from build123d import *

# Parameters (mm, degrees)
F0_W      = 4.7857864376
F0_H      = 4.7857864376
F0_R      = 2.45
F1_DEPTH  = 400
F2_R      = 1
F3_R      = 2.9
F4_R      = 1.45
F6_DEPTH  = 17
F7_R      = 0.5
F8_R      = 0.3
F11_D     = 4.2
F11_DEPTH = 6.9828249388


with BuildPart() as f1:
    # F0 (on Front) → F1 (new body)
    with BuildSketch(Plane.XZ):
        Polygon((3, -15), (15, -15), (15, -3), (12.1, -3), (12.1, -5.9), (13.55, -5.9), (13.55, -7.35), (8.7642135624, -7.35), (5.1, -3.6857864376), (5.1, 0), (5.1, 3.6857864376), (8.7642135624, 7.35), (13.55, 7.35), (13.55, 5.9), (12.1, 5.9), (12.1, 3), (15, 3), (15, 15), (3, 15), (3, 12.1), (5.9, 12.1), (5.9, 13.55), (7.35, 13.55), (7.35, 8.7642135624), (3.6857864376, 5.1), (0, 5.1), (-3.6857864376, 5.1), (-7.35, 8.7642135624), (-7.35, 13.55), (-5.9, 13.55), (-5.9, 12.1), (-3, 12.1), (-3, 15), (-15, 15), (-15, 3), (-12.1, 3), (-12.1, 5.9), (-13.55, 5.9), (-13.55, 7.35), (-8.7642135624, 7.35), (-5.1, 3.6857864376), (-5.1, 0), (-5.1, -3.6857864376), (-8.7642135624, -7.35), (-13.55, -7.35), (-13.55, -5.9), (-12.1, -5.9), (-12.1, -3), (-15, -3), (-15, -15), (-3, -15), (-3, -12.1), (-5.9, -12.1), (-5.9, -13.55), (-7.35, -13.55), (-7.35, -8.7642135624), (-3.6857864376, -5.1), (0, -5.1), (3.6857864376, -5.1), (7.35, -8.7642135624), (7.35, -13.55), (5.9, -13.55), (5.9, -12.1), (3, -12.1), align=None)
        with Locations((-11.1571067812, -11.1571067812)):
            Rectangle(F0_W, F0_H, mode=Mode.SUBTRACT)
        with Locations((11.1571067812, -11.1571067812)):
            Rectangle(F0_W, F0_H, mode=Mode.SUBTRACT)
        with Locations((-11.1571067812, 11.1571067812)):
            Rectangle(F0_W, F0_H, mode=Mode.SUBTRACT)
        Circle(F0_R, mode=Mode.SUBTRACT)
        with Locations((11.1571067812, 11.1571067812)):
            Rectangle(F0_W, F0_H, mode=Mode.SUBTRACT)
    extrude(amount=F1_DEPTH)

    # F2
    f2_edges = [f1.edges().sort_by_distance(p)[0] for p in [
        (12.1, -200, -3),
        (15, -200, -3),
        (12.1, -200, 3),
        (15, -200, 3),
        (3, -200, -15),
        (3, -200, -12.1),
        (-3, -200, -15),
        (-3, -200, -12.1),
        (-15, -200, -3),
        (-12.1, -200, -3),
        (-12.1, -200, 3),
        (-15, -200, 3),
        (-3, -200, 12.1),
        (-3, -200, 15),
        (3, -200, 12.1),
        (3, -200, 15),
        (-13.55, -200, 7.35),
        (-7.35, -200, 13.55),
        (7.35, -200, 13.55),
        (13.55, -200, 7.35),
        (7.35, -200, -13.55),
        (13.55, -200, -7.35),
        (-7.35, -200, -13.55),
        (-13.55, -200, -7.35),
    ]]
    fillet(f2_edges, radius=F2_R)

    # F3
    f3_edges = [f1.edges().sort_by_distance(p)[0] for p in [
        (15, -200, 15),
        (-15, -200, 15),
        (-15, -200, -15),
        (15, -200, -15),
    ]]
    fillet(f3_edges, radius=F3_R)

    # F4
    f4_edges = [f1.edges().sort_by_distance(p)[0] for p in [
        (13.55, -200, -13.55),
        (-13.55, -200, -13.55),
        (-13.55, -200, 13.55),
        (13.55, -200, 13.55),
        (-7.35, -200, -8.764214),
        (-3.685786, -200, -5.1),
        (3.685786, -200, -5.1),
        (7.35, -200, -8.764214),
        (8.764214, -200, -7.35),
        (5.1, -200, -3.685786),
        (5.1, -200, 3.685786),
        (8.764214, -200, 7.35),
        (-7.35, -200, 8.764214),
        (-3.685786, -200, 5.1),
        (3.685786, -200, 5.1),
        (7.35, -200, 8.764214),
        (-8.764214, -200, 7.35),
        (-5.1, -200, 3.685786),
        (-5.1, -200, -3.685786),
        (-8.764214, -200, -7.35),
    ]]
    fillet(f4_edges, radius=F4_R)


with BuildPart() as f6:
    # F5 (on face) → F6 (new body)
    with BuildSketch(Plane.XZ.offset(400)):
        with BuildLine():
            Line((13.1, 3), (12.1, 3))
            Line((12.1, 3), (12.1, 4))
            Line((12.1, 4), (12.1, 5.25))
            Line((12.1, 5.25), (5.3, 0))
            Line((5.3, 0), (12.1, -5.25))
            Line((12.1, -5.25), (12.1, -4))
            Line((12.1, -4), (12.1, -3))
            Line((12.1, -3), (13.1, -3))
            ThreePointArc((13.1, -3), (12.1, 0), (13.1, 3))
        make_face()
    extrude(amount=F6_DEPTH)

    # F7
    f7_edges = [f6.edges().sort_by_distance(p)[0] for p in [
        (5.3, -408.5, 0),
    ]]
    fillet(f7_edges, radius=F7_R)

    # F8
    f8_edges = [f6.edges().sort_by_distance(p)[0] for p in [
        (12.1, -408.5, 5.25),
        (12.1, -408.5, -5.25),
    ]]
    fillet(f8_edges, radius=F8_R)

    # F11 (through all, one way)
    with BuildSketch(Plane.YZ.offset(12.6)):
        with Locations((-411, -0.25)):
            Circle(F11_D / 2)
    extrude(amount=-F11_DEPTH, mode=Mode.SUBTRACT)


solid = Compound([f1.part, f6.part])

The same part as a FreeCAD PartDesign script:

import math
import FreeCAD as App
import Part
import Sketcher
from FreeCAD import Vector


def edges_at(feature, points):
    """Names of the edges that pass closest to the given points."""
    edges = feature.Shape.Edges
    near = lambda p: min(range(len(edges)), key=lambda i: edges[i].distToShape(Part.Vertex(*p))[0])
    return sorted({f"Edge{near(p) + 1}" for p in points})


def add_polygon(sketch, points):
    """Adds a closed chain of lines whose ends are joined by coincident constraints."""
    first, n = sketch.GeometryCount, len(points)
    for a, b in zip(points, points[1:] + points[:1]):
        sketch.addGeometry(Part.LineSegment(App.Vector(*a, 0), App.Vector(*b, 0)), False)
    for i in range(n):
        sketch.addConstraint(Sketcher.Constraint("Coincident", first + i, 2, first + (i + 1) % n, 1))

doc = App.newDocument("Part")
body = doc.addObject("PartDesign::Body", "Body")

# Sketch on XZ plane
sketch1 = body.newObject("Sketcher::SketchObject", "Sketch")
sketch1.AttachmentSupport = (doc.getObject("XZ_Plane"), [""])
sketch1.MapMode = "FlatFace"
add_polygon(sketch1, [(3, -15), (15, -15), (15, -3), (12.1, -3), (12.1, -5.9), (13.6, -5.9), (13.6, -7.3), (8.8, -7.3), (5.1, -3.7), (5.1, 3.7), (8.8, 7.3), (13.6, 7.3), (13.6, 5.9), (12.1, 5.9), (12.1, 3), (15, 3), (15, 15), (3, 15), (3, 12.1), (5.9, 12.1), (5.9, 13.6), (7.3, 13.6), (7.3, 8.8), (3.7, 5.1), (-3.7, 5.1), (-7.3, 8.8), (-7.3, 13.6), (-5.9, 13.6), (-5.9, 12.1), (-3, 12.1), (-3, 15), (-15, 15), (-15, 3), (-12.1, 3), (-12.1, 5.9), (-13.6, 5.9), (-13.6, 7.3), (-8.8, 7.3), (-5.1, 3.7), (-5.1, -3.7), (-8.8, -7.3), (-13.6, -7.3), (-13.6, -5.9), (-12.1, -5.9), (-12.1, -3), (-15, -3), (-15, -15), (-3, -15), (-3, -12.1), (-5.9, -12.1), (-5.9, -13.6), (-7.3, -13.6), (-7.3, -8.8), (-3.7, -5.1), (3.7, -5.1), (7.3, -8.8), (7.3, -13.6), (5.9, -13.6), (5.9, -12.1), (3, -12.1)])  # lines 0-59
add_polygon(sketch1, [(-8.8, -13.6), (-13.6, -13.6), (-13.6, -8.8), (-8.8, -8.8)])  # lines 60-63
sketch1.addGeometry(Part.Circle(Vector(0, 0, 0), Vector(0, 0, 1), 2.5), False)  # 64
add_polygon(sketch1, [(13.6, -13.6), (8.8, -13.6), (8.8, -8.8), (13.6, -8.8)])  # lines 65-68
add_polygon(sketch1, [(-8.8, 8.8), (-13.6, 8.8), (-13.6, 13.6), (-8.8, 13.6)])  # lines 69-72
add_polygon(sketch1, [(13.6, 8.8), (8.8, 8.8), (8.8, 13.6), (13.6, 13.6)])  # lines 73-76
sketch1.addConstraint([
    Sketcher.Constraint("Horizontal", 0),
    Sketcher.Constraint("Vertical", 1),
    Sketcher.Constraint("Horizontal", 2),
    Sketcher.Constraint("Vertical", 3),
    Sketcher.Constraint("Horizontal", 4),
    Sketcher.Constraint("Vertical", 5),
    Sketcher.Constraint("Horizontal", 6),
    Sketcher.Constraint("Vertical", 8),
    Sketcher.Constraint("Horizontal", 10),
    Sketcher.Constraint("Vertical", 11),
    Sketcher.Constraint("Horizontal", 12),
    Sketcher.Constraint("Vertical", 13),
    Sketcher.Constraint("Horizontal", 14),
    Sketcher.Constraint("Vertical", 15),
    Sketcher.Constraint("Horizontal", 16),
    Sketcher.Constraint("Vertical", 17),
    Sketcher.Constraint("Horizontal", 18),
    Sketcher.Constraint("Vertical", 19),
    Sketcher.Constraint("Horizontal", 20),
    Sketcher.Constraint("Vertical", 21),
    Sketcher.Constraint("Horizontal", 23),
    Sketcher.Constraint("Vertical", 25),
    Sketcher.Constraint("Horizontal", 26),
    Sketcher.Constraint("Vertical", 27),
    Sketcher.Constraint("Horizontal", 28),
    Sketcher.Constraint("Vertical", 29),
    Sketcher.Constraint("Horizontal", 30),
    Sketcher.Constraint("Vertical", 31),
    Sketcher.Constraint("Horizontal", 32),
    Sketcher.Constraint("Vertical", 33),
    Sketcher.Constraint("Horizontal", 34),
    Sketcher.Constraint("Vertical", 35),
    Sketcher.Constraint("Horizontal", 36),
    Sketcher.Constraint("Vertical", 38),
    Sketcher.Constraint("Horizontal", 40),
    Sketcher.Constraint("Vertical", 41),
    Sketcher.Constraint("Horizontal", 42),
    Sketcher.Constraint("Vertical", 43),
    Sketcher.Constraint("Horizontal", 44),
    Sketcher.Constraint("Vertical", 45),
    Sketcher.Constraint("Horizontal", 46),
    Sketcher.Constraint("Vertical", 47),
    Sketcher.Constraint("Horizontal", 48),
    Sketcher.Constraint("Vertical", 49),
    Sketcher.Constraint("Horizontal", 50),
    Sketcher.Constraint("Vertical", 51),
    Sketcher.Constraint("Horizontal", 53),
    Sketcher.Constraint("Vertical", 55),
    Sketcher.Constraint("Horizontal", 56),
    Sketcher.Constraint("Vertical", 57),
    Sketcher.Constraint("Horizontal", 58),
    Sketcher.Constraint("Vertical", 59),
    Sketcher.Constraint("Horizontal", 60),
    Sketcher.Constraint("Vertical", 61),
    Sketcher.Constraint("Horizontal", 62),
    Sketcher.Constraint("Vertical", 63),
    Sketcher.Constraint("Horizontal", 65),
    Sketcher.Constraint("Vertical", 66),
    Sketcher.Constraint("Horizontal", 67),
    Sketcher.Constraint("Vertical", 68),
    Sketcher.Constraint("Horizontal", 69),
    Sketcher.Constraint("Vertical", 70),
    Sketcher.Constraint("Horizontal", 71),
    Sketcher.Constraint("Vertical", 72),
    Sketcher.Constraint("Horizontal", 73),
    Sketcher.Constraint("Vertical", 74),
    Sketcher.Constraint("Horizontal", 75),
    Sketcher.Constraint("Vertical", 76),
    Sketcher.Constraint("Coincident", 64, 3, -1, 1),
    Sketcher.Constraint("Symmetric", 0, 2, 30, 2, -1, 1),
    Sketcher.Constraint("Symmetric", 2, 2, 32, 2, -1, 1),
    Sketcher.Constraint("Symmetric", 4, 2, 34, 2, -1, 1),
    Sketcher.Constraint("Symmetric", 6, 2, 36, 2, -1, 1),
    Sketcher.Constraint("Symmetric", 7, 2, 37, 2, -1, 1),
    Sketcher.Constraint("Symmetric", 9, 2, 39, 2, -1, 1),
    Sketcher.Constraint("Symmetric", 11, 2, 41, 2, -1, 1),
    Sketcher.Constraint("Symmetric", 13, 2, 43, 2, -1, 1),
    Sketcher.Constraint("Symmetric", 15, 2, 45, 2, -1, 1),
    Sketcher.Constraint("Symmetric", 17, 2, 47, 2, -1, 1),
    Sketcher.Constraint("Symmetric", 19, 2, 49, 2, -1, 1),
    Sketcher.Constraint("Symmetric", 21, 2, 51, 2, -1, 1),
    Sketcher.Constraint("Symmetric", 22, 2, 52, 2, -1, 1),
    Sketcher.Constraint("Symmetric", 24, 2, 54, 2, -1, 1),
    Sketcher.Constraint("Symmetric", 26, 2, 56, 2, -1, 1),
    Sketcher.Constraint("Symmetric", 28, 2, 58, 2, -1, 1),
    Sketcher.Constraint("Symmetric", 67, 2, 69, 2, -1, 1),
    Sketcher.Constraint("Symmetric", 65, 2, 71, 2, -1, 1),
    Sketcher.Constraint("Symmetric", 62, 2, 73, 2, -1, 1),
    Sketcher.Constraint("Symmetric", 60, 2, 75, 2, -1, 1),
    Sketcher.Constraint("Symmetric", 21, 2, 24, 2, -2),
    Sketcher.Constraint("Symmetric", 19, 2, 26, 2, -2),
    Sketcher.Constraint("Symmetric", 17, 2, 28, 2, -2),
    Sketcher.Constraint("Symmetric", 15, 2, 30, 2, -2),
    Sketcher.Constraint("Symmetric", 13, 2, 32, 2, -2),
    Sketcher.Constraint("Symmetric", 11, 2, 34, 2, -2),
    Sketcher.Constraint("Symmetric", 9, 2, 36, 2, -2),
    Sketcher.Constraint("Symmetric", 63, 2, 65, 2, -2),
    Sketcher.Constraint("Symmetric", 61, 2, 67, 2, -2),
    Sketcher.Constraint("Perpendicular", 7, 9),
    Sketcher.Constraint("Parallel", 9, 22),
    Sketcher.Constraint("Perpendicular", 22, 24),
    Sketcher.Constraint("Perpendicular", 37, 39),
    Sketcher.Constraint("Perpendicular", 52, 54),
    Sketcher.Constraint("Horizontal", 8, 2, 37, 2),
    Sketcher.Constraint("Horizontal", 56, 2, 60, 2),
    Sketcher.Constraint("Horizontal", 54, 2, 61, 2),
    Sketcher.Constraint("Vertical", 41, 2, 60, 2),
    Sketcher.Constraint("Vertical", 39, 2, 62, 2),
    Sketcher.Constraint("Equal", 14, 18),
    Sketcher.Constraint("Equal", 12, 20),
    Sketcher.Constraint("Equal", 46, 1),
    Sketcher.Constraint("Equal", 58, 3),
    Sketcher.Constraint("Equal", 56, 5),
    Sketcher.Constraint("Equal", 53, 8),
    Sketcher.Constraint("Equal", 13, 17),
    Sketcher.Constraint("Equal", 11, 19),
    Sketcher.Constraint("Equal", 75, 21),
    Sketcher.Constraint("Equal", 9, 22),
    Sketcher.Constraint("Diameter", 64, 4.9),
    Sketcher.Constraint("DistanceX", 0, 1, 0, 2, 12.0),
    Sketcher.Constraint("DistanceX", 2, 2, 2, 1, 2.9),
    Sketcher.Constraint("DistanceX", -1, 1, 0, 2, 15.0),
    Sketcher.Constraint("DistanceX", 4, 1, 4, 2, 1.45),
    Sketcher.Constraint("DistanceX", -1, 1, 7, 2, 5.1),
    Sketcher.Constraint("Distance", 7, 5.181981),
])
pad1 = body.newObject("PartDesign::Pad", "Pad")
pad1.Profile = sketch1
pad1.Length = 400
doc.recompute()

fillet = body.newObject("PartDesign::Fillet", "Fillet")
fillet.Base = (pad1, edges_at(pad1, [
    (12.1, -200, -3),
    (15, -200, -3),
    (12.1, -200, 3),
    (15, -200, 3),
    (3, -200, -15),
    (3, -200, -12.1),
    (-3, -200, -15),
    (-3, -200, -12.1),
    (-15, -200, -3),
    (-12.1, -200, -3),
    (-12.1, -200, 3),
    (-15, -200, 3),
    (-3, -200, 12.1),
    (-3, -200, 15),
    (3, -200, 12.1),
    (3, -200, 15),
    (-13.55, -200, 7.35),
    (-7.35, -200, 13.55),
    (7.35, -200, 13.55),
    (13.55, -200, 7.35),
    (7.35, -200, -13.55),
    (13.55, -200, -7.35),
    (-7.35, -200, -13.55),
    (-13.55, -200, -7.35),
]))
fillet.Radius = 1
doc.recompute()

fillet2 = body.newObject("PartDesign::Fillet", "Fillet001")
fillet2.Base = (fillet, edges_at(fillet, [
    (15, -200, 15),
    (-15, -200, 15),
    (-15, -200, -15),
    (15, -200, -15),
]))
fillet2.Radius = 2.9
doc.recompute()

fillet3 = body.newObject("PartDesign::Fillet", "Fillet002")
fillet3.Base = (fillet2, edges_at(fillet2, [
    (13.55, -200, -13.55),
    (-13.55, -200, -13.55),
    (-13.55, -200, 13.55),
    (13.55, -200, 13.55),
    (-7.35, -200, -8.764),
    (-3.686, -200, -5.1),
    (3.686, -200, -5.1),
    (7.35, -200, -8.764),
    (8.764, -200, -7.35),
    (5.1, -200, -3.686),
    (5.1, -200, 3.686),
    (8.764, -200, 7.35),
    (-7.35, -200, 8.764),
    (-3.686, -200, 5.1),
    (3.686, -200, 5.1),
    (7.35, -200, 8.764),
    (-8.764, -200, 7.35),
    (-5.1, -200, 3.686),
    (-5.1, -200, -3.686),
    (-8.764, -200, -7.35),
]))
fillet3.Radius = 1.45
body2 = doc.addObject("PartDesign::Body", "Body001")

# Sketch on XZ plane
sketch2 = body2.newObject("Sketcher::SketchObject", "Sketch001")
sketch2.AttachmentSupport = (doc.getObject("XZ_Plane001"), [""])
sketch2.MapMode = "FlatFace"
sketch2.AttachmentOffset = App.Placement(Vector(0, 0, 400), App.Rotation())
sketch2.addGeometry([
    Part.LineSegment(Vector(13.1, 3, 0), Vector(12.1, 3, 0)),  # 0
    Part.LineSegment(Vector(12.1, 3, 0), Vector(12.1, 5.2, 0)),  # 1
    Part.LineSegment(Vector(12.1, 5.2, 0), Vector(5.3, 0, 0)),  # 2
    Part.LineSegment(Vector(5.3, 0, 0), Vector(12.1, -5.2, 0)),  # 3
    Part.LineSegment(Vector(12.1, -5.2, 0), Vector(12.1, -3, 0)),  # 4
    Part.LineSegment(Vector(12.1, -3, 0), Vector(13.1, -3, 0)),  # 5
    Part.ArcOfCircle(Part.Circle(Vector(17.1, 0, 0), Vector(0, 0, 1), 5), math.radians(143), math.radians(217)),  # 6
], False)
sketch2.addConstraint([
    Sketcher.Constraint("Coincident", 0, 2, 1, 1),
    Sketcher.Constraint("Coincident", 1, 2, 2, 1),
    Sketcher.Constraint("Coincident", 2, 2, 3, 1),
    Sketcher.Constraint("Coincident", 3, 2, 4, 1),
    Sketcher.Constraint("Coincident", 4, 2, 5, 1),
    Sketcher.Constraint("Coincident", 5, 2, 6, 2),
    Sketcher.Constraint("Coincident", 6, 1, 0, 1),
    Sketcher.Constraint("Horizontal", 0),
    Sketcher.Constraint("Vertical", 1),
    Sketcher.Constraint("Vertical", 4),
    Sketcher.Constraint("Horizontal", 5),
    Sketcher.Constraint("Symmetric", 1, 2, 3, 2, -1),
    Sketcher.Constraint("Symmetric", 5, 2, 6, 1, -1),
    Sketcher.Constraint("PointOnObject", 2, 2, -1),
    Sketcher.Constraint("Radius", 6, 5.0),
    Sketcher.Constraint("DistanceX", 0, 2, 0, 1, 1.0),
    Sketcher.Constraint("DistanceY", -1, 1, 0, 2, 3.0),
    Sketcher.Constraint("DistanceY", 1, 1, 1, 2, 2.25),
    Sketcher.Constraint("DistanceX", -1, 1, 6, 3, 17.1),
    Sketcher.Constraint("DistanceX", -1, 1, 2, 2, 5.3),
])
pad2 = body2.newObject("PartDesign::Pad", "Pad001")
pad2.Profile = sketch2
pad2.Length = 17
doc.recompute()

fillet4 = body2.newObject("PartDesign::Fillet", "Fillet003")
fillet4.Base = (pad2, edges_at(pad2, [(5.3, -408.5, 0)]))
fillet4.Radius = 0.5
doc.recompute()

fillet5 = body2.newObject("PartDesign::Fillet", "Fillet004")
fillet5.Base = (fillet4, edges_at(fillet4, [(12.1, -408.5, 5.25), (12.1, -408.5, -5.25)]))
fillet5.Radius = 0.3

# Sketch on YZ plane
sketch3 = body2.newObject("Sketcher::SketchObject", "Sketch002")
sketch3.AttachmentSupport = (doc.getObject("YZ_Plane001"), [""])
sketch3.MapMode = "FlatFace"
sketch3.AttachmentOffset = App.Placement(Vector(0, 0, 12.6), App.Rotation())
sketch3.addGeometry(Part.Circle(Vector(-411, -0.2, 0), Vector(0, 0, 1), 2.1), False)
sketch3.addConstraint([
    Sketcher.Constraint("Diameter", 0, 4.2),
    Sketcher.Constraint("DistanceX", 0, 3, -1, 1, 411.0),
    Sketcher.Constraint("DistanceY", 0, 3, -1, 1, 0.25),
])
pocket1 = body2.newObject("PartDesign::Pocket", "Pocket")
pocket1.Profile = sketch3
pocket1.Type = "ThroughAll"

doc.recompute()
